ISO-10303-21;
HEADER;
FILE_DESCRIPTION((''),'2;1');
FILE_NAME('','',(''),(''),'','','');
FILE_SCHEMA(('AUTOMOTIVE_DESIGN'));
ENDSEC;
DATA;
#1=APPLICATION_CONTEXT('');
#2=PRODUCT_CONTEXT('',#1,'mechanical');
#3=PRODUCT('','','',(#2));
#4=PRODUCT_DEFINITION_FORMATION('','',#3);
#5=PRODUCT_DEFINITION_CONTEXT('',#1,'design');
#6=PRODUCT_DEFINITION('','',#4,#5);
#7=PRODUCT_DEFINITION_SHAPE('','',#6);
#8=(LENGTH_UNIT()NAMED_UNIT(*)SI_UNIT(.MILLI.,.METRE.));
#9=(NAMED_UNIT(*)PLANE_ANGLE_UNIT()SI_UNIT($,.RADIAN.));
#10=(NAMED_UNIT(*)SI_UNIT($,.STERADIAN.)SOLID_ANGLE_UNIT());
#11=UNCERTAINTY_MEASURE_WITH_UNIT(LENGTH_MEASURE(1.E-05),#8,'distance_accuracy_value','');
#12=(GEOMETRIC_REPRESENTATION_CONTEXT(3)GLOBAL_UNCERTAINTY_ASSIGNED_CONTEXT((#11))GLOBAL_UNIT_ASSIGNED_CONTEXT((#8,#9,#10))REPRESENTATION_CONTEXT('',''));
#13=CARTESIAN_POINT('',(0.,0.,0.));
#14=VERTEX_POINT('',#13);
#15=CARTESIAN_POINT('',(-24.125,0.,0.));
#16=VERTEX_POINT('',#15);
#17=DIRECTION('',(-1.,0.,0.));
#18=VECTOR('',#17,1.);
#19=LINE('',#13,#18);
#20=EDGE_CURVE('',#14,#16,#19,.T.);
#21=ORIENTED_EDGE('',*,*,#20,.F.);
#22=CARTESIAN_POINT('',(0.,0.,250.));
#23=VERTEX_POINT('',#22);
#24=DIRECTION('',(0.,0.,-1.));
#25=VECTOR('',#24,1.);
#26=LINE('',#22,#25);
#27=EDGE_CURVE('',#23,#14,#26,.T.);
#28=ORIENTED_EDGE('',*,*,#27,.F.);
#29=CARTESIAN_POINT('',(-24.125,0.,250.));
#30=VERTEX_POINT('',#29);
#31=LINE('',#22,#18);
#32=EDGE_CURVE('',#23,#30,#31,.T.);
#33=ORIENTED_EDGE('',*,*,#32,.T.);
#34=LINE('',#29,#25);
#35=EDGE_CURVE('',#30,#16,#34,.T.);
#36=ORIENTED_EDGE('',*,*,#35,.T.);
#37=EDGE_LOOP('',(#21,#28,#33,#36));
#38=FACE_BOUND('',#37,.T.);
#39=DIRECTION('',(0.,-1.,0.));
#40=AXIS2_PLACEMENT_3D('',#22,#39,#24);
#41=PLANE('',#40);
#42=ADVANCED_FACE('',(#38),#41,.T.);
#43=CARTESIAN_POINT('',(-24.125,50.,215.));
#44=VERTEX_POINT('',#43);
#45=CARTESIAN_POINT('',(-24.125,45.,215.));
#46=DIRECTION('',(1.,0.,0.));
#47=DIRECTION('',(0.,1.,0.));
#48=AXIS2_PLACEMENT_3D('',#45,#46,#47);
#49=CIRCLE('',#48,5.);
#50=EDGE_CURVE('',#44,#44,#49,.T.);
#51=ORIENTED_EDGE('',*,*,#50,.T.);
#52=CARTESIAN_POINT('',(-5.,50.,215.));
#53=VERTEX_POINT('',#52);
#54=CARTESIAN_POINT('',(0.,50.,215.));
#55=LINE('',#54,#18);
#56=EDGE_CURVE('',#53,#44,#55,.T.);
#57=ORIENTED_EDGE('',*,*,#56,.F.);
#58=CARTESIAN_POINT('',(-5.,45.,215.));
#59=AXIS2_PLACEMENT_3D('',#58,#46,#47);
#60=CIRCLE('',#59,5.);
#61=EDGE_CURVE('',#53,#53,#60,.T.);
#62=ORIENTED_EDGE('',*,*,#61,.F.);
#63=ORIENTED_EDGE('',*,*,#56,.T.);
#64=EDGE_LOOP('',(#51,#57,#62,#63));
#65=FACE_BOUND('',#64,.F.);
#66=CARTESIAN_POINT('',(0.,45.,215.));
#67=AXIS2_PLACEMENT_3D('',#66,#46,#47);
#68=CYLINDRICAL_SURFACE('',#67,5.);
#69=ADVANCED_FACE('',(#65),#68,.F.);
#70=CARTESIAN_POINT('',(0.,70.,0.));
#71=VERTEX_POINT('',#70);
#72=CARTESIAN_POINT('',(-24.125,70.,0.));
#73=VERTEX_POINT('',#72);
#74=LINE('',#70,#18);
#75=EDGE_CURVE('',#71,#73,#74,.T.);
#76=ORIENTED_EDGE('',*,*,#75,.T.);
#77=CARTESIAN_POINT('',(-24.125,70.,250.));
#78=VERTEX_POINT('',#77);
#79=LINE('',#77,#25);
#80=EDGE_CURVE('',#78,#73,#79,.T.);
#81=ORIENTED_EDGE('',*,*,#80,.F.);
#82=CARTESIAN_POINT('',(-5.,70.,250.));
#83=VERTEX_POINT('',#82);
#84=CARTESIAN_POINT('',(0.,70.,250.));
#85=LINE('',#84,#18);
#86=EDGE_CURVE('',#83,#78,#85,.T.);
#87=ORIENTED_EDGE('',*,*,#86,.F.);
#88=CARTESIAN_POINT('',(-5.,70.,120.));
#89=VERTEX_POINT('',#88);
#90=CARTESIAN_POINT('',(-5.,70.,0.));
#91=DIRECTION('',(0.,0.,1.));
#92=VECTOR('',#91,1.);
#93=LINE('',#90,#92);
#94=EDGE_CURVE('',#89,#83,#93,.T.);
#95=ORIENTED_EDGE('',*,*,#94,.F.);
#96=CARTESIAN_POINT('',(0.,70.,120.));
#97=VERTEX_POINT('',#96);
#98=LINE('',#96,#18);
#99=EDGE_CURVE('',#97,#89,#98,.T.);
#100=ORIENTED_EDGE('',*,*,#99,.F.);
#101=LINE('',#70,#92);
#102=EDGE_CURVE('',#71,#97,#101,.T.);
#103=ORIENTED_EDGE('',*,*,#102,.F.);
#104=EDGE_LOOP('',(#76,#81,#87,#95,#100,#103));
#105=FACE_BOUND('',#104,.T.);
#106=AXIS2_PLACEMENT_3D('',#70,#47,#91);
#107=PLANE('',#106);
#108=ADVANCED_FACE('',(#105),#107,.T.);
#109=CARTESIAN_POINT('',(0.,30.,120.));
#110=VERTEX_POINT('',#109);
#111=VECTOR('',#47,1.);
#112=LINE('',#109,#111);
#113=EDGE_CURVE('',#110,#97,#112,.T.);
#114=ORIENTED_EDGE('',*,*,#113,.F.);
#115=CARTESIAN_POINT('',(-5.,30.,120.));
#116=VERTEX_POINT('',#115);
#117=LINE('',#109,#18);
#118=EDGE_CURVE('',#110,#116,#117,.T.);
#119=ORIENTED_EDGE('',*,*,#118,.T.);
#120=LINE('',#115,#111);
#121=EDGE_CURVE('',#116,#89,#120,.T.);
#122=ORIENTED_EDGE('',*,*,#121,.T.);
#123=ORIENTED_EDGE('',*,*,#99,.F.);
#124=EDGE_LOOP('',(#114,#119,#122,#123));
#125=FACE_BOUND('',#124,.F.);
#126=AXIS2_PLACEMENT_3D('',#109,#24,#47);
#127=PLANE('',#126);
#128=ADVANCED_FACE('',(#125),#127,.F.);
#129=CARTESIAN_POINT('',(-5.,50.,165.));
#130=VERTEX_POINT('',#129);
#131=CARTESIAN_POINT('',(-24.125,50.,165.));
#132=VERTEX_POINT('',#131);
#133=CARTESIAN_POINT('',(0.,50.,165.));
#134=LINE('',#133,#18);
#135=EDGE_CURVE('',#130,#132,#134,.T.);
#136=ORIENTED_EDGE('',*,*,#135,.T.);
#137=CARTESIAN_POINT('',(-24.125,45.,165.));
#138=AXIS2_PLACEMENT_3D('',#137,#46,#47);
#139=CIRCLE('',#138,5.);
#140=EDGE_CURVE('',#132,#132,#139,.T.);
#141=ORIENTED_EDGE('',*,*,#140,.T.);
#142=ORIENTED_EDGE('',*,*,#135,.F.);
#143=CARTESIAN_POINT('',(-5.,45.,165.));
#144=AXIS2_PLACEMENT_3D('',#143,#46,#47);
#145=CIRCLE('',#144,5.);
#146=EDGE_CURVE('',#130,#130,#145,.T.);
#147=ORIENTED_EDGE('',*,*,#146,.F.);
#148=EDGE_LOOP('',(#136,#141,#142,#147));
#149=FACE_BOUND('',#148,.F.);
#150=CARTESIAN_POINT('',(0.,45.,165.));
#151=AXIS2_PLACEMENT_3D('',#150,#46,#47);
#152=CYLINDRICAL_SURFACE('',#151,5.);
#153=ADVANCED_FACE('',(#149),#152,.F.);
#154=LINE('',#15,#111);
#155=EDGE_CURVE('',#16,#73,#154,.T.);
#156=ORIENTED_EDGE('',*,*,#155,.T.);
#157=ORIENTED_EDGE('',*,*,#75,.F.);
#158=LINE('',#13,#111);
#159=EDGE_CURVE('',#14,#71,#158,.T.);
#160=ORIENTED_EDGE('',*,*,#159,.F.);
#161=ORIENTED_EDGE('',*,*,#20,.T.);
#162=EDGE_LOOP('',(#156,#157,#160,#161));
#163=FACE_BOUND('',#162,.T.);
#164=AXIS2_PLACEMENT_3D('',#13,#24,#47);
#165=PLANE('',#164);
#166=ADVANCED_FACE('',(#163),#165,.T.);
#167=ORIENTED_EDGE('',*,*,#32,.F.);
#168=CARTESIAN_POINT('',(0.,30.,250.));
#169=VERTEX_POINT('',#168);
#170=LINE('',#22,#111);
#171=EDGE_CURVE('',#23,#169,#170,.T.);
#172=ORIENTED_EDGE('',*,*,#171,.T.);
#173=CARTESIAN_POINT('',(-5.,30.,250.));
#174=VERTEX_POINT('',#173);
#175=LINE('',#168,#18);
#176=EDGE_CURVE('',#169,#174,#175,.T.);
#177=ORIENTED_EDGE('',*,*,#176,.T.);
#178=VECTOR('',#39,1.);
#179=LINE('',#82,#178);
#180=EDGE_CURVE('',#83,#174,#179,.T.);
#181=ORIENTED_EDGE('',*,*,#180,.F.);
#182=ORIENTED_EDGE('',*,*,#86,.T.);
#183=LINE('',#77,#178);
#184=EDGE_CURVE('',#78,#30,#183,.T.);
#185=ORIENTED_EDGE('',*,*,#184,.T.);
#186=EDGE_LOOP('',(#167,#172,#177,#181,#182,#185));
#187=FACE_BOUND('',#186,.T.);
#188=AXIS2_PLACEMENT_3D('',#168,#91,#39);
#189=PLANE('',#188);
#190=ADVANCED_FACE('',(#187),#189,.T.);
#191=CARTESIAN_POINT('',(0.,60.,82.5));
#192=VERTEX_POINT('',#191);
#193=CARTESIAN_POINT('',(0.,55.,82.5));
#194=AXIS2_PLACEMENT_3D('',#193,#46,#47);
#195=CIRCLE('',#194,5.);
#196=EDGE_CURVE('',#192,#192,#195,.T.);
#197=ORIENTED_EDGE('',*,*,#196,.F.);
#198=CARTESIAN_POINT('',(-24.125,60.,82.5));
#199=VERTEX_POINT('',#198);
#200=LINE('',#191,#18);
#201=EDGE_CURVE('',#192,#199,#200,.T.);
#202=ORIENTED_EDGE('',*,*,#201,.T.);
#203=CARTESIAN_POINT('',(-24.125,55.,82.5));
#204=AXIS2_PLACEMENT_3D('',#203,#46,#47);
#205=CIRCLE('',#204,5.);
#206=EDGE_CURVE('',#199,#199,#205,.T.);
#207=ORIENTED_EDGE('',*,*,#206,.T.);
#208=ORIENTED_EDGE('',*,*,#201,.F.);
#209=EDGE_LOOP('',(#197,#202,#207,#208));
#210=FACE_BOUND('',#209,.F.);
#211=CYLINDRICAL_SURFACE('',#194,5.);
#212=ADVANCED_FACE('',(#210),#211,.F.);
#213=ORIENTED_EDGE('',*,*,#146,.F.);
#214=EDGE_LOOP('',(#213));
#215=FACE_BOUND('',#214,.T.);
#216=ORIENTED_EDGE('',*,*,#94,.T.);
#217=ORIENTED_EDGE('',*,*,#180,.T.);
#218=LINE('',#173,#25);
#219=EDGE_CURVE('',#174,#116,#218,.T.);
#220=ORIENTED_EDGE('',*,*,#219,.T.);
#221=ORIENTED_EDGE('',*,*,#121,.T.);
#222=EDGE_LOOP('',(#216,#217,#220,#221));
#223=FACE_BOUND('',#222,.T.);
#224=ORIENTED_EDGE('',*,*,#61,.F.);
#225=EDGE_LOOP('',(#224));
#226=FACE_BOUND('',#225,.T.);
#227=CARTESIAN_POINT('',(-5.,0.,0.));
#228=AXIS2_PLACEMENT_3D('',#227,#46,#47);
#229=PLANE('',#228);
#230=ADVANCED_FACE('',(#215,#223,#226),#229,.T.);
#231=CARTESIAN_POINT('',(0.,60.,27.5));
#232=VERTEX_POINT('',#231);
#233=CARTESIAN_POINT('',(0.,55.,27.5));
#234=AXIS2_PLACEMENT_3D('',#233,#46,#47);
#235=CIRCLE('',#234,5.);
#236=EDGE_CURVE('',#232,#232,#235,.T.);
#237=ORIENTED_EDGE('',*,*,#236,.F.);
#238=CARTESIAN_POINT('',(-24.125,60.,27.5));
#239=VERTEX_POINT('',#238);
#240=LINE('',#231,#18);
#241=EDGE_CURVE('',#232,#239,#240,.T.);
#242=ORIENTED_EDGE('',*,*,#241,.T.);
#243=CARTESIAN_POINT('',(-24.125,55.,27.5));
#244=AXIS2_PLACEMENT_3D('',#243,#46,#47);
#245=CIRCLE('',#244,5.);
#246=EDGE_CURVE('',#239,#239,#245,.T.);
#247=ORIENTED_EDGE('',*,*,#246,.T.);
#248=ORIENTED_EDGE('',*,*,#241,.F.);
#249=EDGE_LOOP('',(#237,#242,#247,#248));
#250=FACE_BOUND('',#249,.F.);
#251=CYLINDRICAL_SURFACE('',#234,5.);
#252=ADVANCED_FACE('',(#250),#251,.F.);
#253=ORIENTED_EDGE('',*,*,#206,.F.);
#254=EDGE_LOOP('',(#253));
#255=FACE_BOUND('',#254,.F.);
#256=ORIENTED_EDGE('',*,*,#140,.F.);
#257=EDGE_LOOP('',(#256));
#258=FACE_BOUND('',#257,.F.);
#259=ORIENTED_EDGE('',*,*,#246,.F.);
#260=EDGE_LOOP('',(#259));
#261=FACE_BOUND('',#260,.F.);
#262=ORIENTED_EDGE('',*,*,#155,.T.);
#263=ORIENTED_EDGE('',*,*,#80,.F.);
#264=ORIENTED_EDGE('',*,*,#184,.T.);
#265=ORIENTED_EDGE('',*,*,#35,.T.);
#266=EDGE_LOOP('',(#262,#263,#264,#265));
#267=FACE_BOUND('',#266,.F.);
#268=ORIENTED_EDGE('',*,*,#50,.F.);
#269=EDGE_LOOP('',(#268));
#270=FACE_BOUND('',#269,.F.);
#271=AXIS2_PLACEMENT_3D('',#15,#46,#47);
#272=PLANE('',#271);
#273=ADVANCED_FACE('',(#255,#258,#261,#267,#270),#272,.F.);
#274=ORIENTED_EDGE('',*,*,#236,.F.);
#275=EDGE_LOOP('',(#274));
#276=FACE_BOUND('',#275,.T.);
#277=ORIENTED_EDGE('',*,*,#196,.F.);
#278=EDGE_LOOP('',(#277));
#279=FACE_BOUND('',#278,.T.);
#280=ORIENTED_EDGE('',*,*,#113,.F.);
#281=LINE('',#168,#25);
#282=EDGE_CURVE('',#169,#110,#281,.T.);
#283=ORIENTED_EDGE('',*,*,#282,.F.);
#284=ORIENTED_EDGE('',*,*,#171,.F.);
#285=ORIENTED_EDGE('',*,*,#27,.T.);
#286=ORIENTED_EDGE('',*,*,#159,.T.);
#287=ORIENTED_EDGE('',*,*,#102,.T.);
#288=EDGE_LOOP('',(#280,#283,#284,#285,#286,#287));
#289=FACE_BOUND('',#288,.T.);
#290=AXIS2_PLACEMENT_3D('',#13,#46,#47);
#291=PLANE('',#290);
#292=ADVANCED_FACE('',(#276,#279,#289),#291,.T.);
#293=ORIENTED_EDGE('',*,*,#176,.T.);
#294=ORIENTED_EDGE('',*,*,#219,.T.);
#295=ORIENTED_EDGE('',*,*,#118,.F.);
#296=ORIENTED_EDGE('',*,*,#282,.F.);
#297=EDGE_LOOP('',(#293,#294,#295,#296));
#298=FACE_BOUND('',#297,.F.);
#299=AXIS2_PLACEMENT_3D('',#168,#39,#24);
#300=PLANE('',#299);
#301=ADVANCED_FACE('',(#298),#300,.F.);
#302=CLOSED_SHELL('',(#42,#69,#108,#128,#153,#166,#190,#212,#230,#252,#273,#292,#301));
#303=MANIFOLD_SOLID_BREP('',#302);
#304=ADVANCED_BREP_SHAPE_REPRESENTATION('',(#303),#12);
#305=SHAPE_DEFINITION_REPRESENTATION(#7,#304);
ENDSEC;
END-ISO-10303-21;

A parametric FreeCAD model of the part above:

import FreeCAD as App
import Part
import Sketcher
from FreeCAD import Vector
Q = App.Units.Quantity

doc = App.newDocument("Part")
body = doc.addObject("PartDesign::Body", "Body")

# Sketch on YZ plane
sketch1 = body.newObject("Sketcher::SketchObject", "Sketch")
sketch1.AttachmentSupport = (doc.getObject("YZ_Plane"), [""])
sketch1.MapMode = "FlatFace"
sketch1.addGeometry(Part.LineSegment(Vector(0, 250, 0), Vector(0, 0, 0)), False)
sketch1.addGeometry(Part.LineSegment(Vector(0, 0, 0), Vector(70, 0, 0)), False)
sketch1.addGeometry(Part.LineSegment(Vector(70, 0, 0), Vector(70, 250, 0)), False)
sketch1.addGeometry(Part.LineSegment(Vector(70, 250, 0), Vector(0, 250, 0)), False)
sketch1.addGeometry(Part.Circle(Vector(45, 165, 0), Vector(0, 0, 1), 5), False)
sketch1.addGeometry(Part.Circle(Vector(45, 215, 0), Vector(0, 0, 1), 5), False)
sketch1.addConstraint(Sketcher.Constraint("Coincident", 0, 2, 1, 1))
sketch1.addConstraint(Sketcher.Constraint("Coincident", 1, 2, 2, 1))
sketch1.addConstraint(Sketcher.Constraint("Coincident", 2, 2, 3, 1))
sketch1.addConstraint(Sketcher.Constraint("Coincident", 3, 2, 0, 1))
sketch1.addConstraint(Sketcher.Constraint("Vertical", 0))
sketch1.addConstraint(Sketcher.Constraint("Horizontal", 1))
sketch1.addConstraint(Sketcher.Constraint("Vertical", 2))
sketch1.addConstraint(Sketcher.Constraint("Horizontal", 3))
sketch1.addConstraint(Sketcher.Constraint("Coincident", 0, 2, -1, 1))
sketch1.addConstraint(Sketcher.Constraint("Equal", 4, 5))
sketch1.addConstraint(Sketcher.Constraint("Vertical", 4, 3, 5, 3))
sketch1.addConstraint(Sketcher.Constraint("Diameter", 4, Q("10 mm")))
sketch1.addConstraint(Sketcher.Constraint("DistanceX", 1, 1, 1, 2, Q("70 mm")))
sketch1.addConstraint(Sketcher.Constraint("DistanceY", 0, 2, 0, 1, Q("250 mm")))
sketch1.addConstraint(Sketcher.Constraint("DistanceY", 4, 3, 5, 3, Q("50 mm")))
sketch1.addConstraint(Sketcher.Constraint("DistanceX", 4, 3, 1, 2, Q("25 mm")))
sketch1.addConstraint(Sketcher.Constraint("DistanceY", 5, 3, 2, 2, Q("35 mm")))
pad1 = body.newObject("PartDesign::Pad", "Pad")
pad1.Profile = sketch1
pad1.Length = 24.125
pad1.Reversed = True

# Sketch on YZ plane
sketch2 = body.newObject("Sketcher::SketchObject", "Sketch001")
sketch2.AttachmentSupport = (doc.getObject("YZ_Plane"), [""])
sketch2.MapMode = "FlatFace"
sketch2.addGeometry(Part.LineSegment(Vector(30, 120, 0), Vector(70, 120, 0)), False)
sketch2.addGeometry(Part.LineSegment(Vector(70, 120, 0), Vector(70, 250, 0)), False)
sketch2.addGeometry(Part.LineSegment(Vector(70, 250, 0), Vector(30, 250, 0)), False)
sketch2.addGeometry(Part.LineSegment(Vector(30, 250, 0), Vector(30, 120, 0)), False)
sketch2.addGeometry(Part.Circle(Vector(45, 165, 0), Vector(0, 0, 1), 5), False)
sketch2.addGeometry(Part.Circle(Vector(45, 215, 0), Vector(0, 0, 1), 5), False)
sketch2.addConstraint(Sketcher.Constraint("Coincident", 0, 2, 1, 1))
sketch2.addConstraint(Sketcher.Constraint("Coincident", 1, 2, 2, 1))
sketch2.addConstraint(Sketcher.Constraint("Coincident", 2, 2, 3, 1))
sketch2.addConstraint(Sketcher.Constraint("Coincident", 3, 2, 0, 1))
sketch2.addConstraint(Sketcher.Constraint("Horizontal", 0))
sketch2.addConstraint(Sketcher.Constraint("Vertical", 1))
sketch2.addConstraint(Sketcher.Constraint("Horizontal", 2))
sketch2.addConstraint(Sketcher.Constraint("Vertical", 3))
sketch2.addConstraint(Sketcher.Constraint("Equal", 4, 5))
sketch2.addConstraint(Sketcher.Constraint("Vertical", 4, 3, 5, 3))
sketch2.addConstraint(Sketcher.Constraint("Diameter", 4, Q("10 mm")))
sketch2.addConstraint(Sketcher.Constraint("DistanceX", 0, 1, 0, 2, Q("40 mm")))
sketch2.addConstraint(Sketcher.Constraint("DistanceY", 1, 1, 1, 2, Q("130 mm")))
sketch2.addConstraint(Sketcher.Constraint("DistanceX", -1, 1, 0, 2, Q("70 mm")))
sketch2.addConstraint(Sketcher.Constraint("DistanceY", -1, 1, 1, 2, Q("250 mm")))
sketch2.addConstraint(Sketcher.Constraint("DistanceY", 4, 3, 5, 3, Q("50 mm")))
sketch2.addConstraint(Sketcher.Constraint("DistanceX", 4, 3, 0, 2, Q("25 mm")))
sketch2.addConstraint(Sketcher.Constraint("DistanceY", 5, 3, 1, 2, Q("35 mm")))
pocket1 = body.newObject("PartDesign::Pocket", "Pocket")
pocket1.Profile = sketch2
pocket1.Length = 5

# Sketch on YZ plane
sketch3 = body.newObject("Sketcher::SketchObject", "Sketch002")
sketch3.AttachmentSupport = (doc.getObject("YZ_Plane"), [""])
sketch3.MapMode = "FlatFace"
sketch3.addGeometry(Part.Circle(Vector(55, 82, 0), Vector(0, 0, 1), 5), False)
sketch3.addGeometry(Part.Circle(Vector(55, 28, 0), Vector(0, 0, 1), 5), False)
sketch3.addConstraint(Sketcher.Constraint("Equal", 0, 1))
sketch3.addConstraint(Sketcher.Constraint("Vertical", 0, 3, 1, 3))
sketch3.addConstraint(Sketcher.Constraint("Diameter", 0, Q("10 mm")))
sketch3.addConstraint(Sketcher.Constraint("DistanceX", -1, 1, 0, 3, Q("55 mm")))
sketch3.addConstraint(Sketcher.Constraint("DistanceY", 1, 3, 0, 3, Q("55 mm")))
sketch3.addConstraint(Sketcher.Constraint("DistanceY", -1, 1, 1, 3, Q("27.5 mm")))
pocket2 = body.newObject("PartDesign::Pocket", "Pocket001")
pocket2.Profile = sketch3
pocket2.Type = "ThroughAll"

doc.recompute()
